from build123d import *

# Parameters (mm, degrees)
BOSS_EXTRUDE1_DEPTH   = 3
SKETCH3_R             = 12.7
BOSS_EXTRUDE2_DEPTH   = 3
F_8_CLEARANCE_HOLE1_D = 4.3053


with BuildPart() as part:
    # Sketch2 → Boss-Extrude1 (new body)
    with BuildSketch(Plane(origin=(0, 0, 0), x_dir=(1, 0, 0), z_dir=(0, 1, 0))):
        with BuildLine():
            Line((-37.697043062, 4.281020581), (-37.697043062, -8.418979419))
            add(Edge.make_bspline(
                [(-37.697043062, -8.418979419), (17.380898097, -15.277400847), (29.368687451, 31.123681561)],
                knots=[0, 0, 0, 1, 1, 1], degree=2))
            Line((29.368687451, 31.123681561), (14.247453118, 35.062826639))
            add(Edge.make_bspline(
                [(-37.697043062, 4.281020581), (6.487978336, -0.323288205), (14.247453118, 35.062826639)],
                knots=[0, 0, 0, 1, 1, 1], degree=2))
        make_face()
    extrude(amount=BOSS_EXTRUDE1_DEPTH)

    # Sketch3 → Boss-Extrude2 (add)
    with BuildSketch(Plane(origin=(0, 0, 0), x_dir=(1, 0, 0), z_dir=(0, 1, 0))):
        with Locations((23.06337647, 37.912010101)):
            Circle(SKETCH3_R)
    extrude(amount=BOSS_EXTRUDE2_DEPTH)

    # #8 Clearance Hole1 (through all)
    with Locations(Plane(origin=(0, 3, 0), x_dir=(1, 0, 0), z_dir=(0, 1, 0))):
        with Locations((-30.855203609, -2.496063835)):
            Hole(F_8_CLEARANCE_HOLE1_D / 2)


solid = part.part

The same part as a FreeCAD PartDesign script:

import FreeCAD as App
import Part
import Sketcher

V = App.Vector
Q = App.Units.Quantity

doc = App.newDocument("Part")
body = doc.addObject("PartDesign::Body", "Body")

sketch1 = body.newObject("Sketcher::SketchObject", "Sketch")
sketch1.AttachmentSupport = (doc.getObject("XZ_Plane"), [""])
sketch1.MapMode = "FlatFace"
sketch1.addGeometry(Part.LineSegment(V(-37.697043, -4.281021, 0), V(-37.697043, 8.418979, 0)), False)
sketch1.addGeometry(Part.BSplineCurve([V(-37.697043, 8.418979, 0), V(17.380898, 15.277401, 0), V(29.368687, -31.123682, 0)], [3, 3], [0, 1], False, 2, [1, 1, 1], False), False)
sketch1.addGeometry(Part.LineSegment(V(29.368687, -31.123682, 0), V(14.247453, -35.062827, 0)), False)
sketch1.addGeometry(Part.BSplineCurve([V(-37.697043, -4.281021, 0), V(6.487978, 0.323288, 0), V(14.247453, -35.062827, 0)], [3, 3], [0, 1], False, 2, [1, 1, 1], False), False)
sketch1.addConstraint(Sketcher.Constraint("Block", 1))
sketch1.addConstraint(Sketcher.Constraint("Block", 3))
sketch1.addConstraint(Sketcher.Constraint("Coincident", 0, 2, 1, 1))
sketch1.addConstraint(Sketcher.Constraint("Coincident", 1, 2, 2, 1))
sketch1.addConstraint(Sketcher.Constraint("Coincident", 2, 2, 3, 2))
sketch1.addConstraint(Sketcher.Constraint("Coincident", 3, 1, 0, 1))
pad1 = body.newObject("PartDesign::Pad", "Pad")
pad1.Profile = sketch1
pad1.Length = 3
pad1.Reversed = True

sketch2 = body.newObject("Sketcher::SketchObject", "Sketch001")
sketch2.AttachmentSupport = (doc.getObject("XZ_Plane"), [""])
sketch2.MapMode = "FlatFace"
sketch2.addGeometry(Part.Circle(V(23.063376, -37.91201, 0), V(0, 0, 1), 12.7), False)
sketch2.addConstraint(Sketcher.Constraint("Diameter", 0, Q("1 in")))
sketch2.addConstraint(Sketcher.Constraint("DistanceY", 0, 3, -1, 1, 37.91201))
sketch2.addConstraint(Sketcher.Constraint("DistanceX", -1, 1, 0, 3, 23.063376))
pad2 = body.newObject("PartDesign::Pad", "Pad001")
pad2.Profile = sketch2
pad2.Length = 3
pad2.Reversed = True

sketch3 = body.newObject("Sketcher::SketchObject", "Sketch002")
sketch3.AttachmentSupport = (doc.getObject("XZ_Plane"), [""])
sketch3.MapMode = "FlatFace"
sketch3.AttachmentOffset = App.Placement(V(0, 0, -3), App.Rotation())
sketch3.addGeometry(Part.Circle(V(-30.855204, 2.496064, 0), V(0, 0, 1), 2.15265), False)
sketch3.addConstraint(Sketcher.Constraint("Diameter", 0, Q("0.1695 in")))
sketch3.addConstraint(Sketcher.Constraint("DistanceX", 0, 3, -1, 1, 30.855204))
sketch3.addConstraint(Sketcher.Constraint("DistanceY", -1, 1, 0, 3, 2.496064))
doc.recompute()
hole = body.newObject("PartDesign::Hole", "Hole")
hole.Profile = sketch3
hole.ThreadType = "None"
hole.Diameter = Q("0.1695 in")
hole.DepthType = "ThroughAll"
hole.Reversed = True

doc.recompute()
